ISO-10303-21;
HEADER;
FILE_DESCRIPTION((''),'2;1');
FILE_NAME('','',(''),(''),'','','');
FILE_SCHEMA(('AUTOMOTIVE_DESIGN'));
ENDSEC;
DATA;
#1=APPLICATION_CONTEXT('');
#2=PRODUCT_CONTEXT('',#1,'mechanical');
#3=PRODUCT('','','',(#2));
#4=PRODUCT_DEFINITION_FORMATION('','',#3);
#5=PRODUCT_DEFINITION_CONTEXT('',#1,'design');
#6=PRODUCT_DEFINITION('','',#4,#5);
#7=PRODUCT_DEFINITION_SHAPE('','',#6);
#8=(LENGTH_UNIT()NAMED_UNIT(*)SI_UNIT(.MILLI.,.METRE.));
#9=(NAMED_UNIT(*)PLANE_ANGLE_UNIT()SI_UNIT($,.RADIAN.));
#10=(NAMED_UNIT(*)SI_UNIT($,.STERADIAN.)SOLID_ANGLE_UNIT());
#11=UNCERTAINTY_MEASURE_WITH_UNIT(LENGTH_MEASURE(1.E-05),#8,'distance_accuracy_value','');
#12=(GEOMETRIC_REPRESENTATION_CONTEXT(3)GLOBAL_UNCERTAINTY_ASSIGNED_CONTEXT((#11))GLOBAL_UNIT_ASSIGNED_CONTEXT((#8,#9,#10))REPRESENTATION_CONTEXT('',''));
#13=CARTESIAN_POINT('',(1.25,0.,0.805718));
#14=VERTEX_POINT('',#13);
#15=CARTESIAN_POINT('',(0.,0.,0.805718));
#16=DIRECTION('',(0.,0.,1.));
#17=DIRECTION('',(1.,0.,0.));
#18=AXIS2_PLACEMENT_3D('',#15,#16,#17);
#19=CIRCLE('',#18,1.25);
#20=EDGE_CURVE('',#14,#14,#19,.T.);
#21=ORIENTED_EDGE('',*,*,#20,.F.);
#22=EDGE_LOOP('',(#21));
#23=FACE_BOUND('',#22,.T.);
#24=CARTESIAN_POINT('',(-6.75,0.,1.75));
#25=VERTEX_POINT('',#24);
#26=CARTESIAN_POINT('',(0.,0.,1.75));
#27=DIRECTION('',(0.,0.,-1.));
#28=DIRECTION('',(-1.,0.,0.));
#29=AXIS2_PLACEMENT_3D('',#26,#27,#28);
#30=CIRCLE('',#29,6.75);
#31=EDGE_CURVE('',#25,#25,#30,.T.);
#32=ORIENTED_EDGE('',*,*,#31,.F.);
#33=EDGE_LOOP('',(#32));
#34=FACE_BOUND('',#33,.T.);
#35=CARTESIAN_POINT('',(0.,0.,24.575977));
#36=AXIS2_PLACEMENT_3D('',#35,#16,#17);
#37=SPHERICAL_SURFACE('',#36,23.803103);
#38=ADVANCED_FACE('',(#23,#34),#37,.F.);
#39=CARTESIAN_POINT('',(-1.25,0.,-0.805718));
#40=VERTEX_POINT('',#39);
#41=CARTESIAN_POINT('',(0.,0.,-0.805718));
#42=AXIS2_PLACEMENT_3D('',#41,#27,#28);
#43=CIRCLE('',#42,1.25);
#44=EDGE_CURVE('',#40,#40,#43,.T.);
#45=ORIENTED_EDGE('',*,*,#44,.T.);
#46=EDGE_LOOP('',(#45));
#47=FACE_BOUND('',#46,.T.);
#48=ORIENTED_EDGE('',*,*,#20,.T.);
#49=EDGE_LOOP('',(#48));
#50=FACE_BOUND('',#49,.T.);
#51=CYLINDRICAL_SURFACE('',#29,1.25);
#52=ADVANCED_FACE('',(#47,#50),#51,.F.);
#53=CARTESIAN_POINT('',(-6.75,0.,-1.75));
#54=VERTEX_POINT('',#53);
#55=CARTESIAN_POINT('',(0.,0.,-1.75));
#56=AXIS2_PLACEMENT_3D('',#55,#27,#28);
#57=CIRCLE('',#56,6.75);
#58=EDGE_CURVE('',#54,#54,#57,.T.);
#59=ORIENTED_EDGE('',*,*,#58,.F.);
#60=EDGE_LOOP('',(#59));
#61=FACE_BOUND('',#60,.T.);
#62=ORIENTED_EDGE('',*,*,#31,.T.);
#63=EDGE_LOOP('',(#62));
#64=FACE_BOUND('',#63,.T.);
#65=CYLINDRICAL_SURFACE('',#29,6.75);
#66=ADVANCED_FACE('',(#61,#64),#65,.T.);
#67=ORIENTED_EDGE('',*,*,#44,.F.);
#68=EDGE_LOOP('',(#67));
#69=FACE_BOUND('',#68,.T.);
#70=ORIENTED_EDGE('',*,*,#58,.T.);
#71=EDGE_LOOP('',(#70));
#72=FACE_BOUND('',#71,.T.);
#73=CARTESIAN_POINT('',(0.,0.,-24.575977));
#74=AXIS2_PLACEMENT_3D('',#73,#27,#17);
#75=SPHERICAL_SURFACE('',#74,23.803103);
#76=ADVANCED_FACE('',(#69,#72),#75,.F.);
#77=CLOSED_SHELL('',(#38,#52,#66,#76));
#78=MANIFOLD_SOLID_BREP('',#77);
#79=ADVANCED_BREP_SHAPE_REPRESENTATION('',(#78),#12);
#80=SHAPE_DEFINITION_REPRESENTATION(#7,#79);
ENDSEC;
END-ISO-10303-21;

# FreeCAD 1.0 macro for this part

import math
import FreeCAD as App
import Part
import Sketcher
from FreeCAD import Vector
Q = App.Units.Quantity

doc = App.newDocument("Part")
body = doc.addObject("PartDesign::Body", "Body")

sketch1 = body.newObject("Sketcher::SketchObject", "Sketch")
sketch1.AttachmentSupport = (doc.getObject("XY_Plane"), [""])
sketch1.MapMode = "FlatFace"
sketch1.addGeometry(Part.Circle(Vector(0, 0, 0), Vector(0, 0, 1), 6.75), False)
sketch1.addGeometry(Part.Circle(Vector(0, 0, 0), Vector(0, 0, 1), 1.25), False)
sketch1.addConstraint(Sketcher.Constraint("Coincident", 0, 3, -1, 1))
sketch1.addConstraint(Sketcher.Constraint("Coincident", 1, 3, -1, 1))
sketch1.addConstraint(Sketcher.Constraint("Diameter", 0, Q("13.5 mm")))
sketch1.addConstraint(Sketcher.Constraint("Diameter", 1, Q("2.5 mm")))
pad1 = body.newObject("PartDesign::Pad", "Pad")
pad1.Profile = sketch1
pad1.Length = 3.5
pad1.Midplane = True

sketch2 = body.newObject("Sketcher::SketchObject", "Sketch001")
sketch2.AttachmentSupport = (doc.getObject("XZ_Plane"), [""])
sketch2.MapMode = "FlatFace"
sketch2.addGeometry(Part.LineSegment(Vector(6.75, -1.75, 0), Vector(0, -1.75, 0)), False)
sketch2.addGeometry(Part.LineSegment(Vector(0, -1.75, 0), Vector(0, -0.772874, 0)), False)
sketch2.addGeometry(Part.ArcOfCircle(Part.Circle(Vector(0, -24.575977, 0), Vector(0, 0, 1), 23.803103), math.radians(73.526224), math.radians(90)), False)
sketch2.addConstraint(Sketcher.Constraint("Coincident", 0, 2, 1, 1))
sketch2.addConstraint(Sketcher.Constraint("Coincident", 1, 2, 2, 2))
sketch2.addConstraint(Sketcher.Constraint("Coincident", 2, 1, 0, 1))
sketch2.addConstraint(Sketcher.Constraint("Horizontal", 0))
sketch2.addConstraint(Sketcher.Constraint("Vertical", 1))
sketch2.addConstraint(Sketcher.Constraint("PointOnObject", 2, 3, -2))
sketch2.addConstraint(Sketcher.Constraint("PointOnObject", 0, 2, -2))
sketch2.addConstraint(Sketcher.Constraint("DistanceX", 0, 2, 0, 1, Q("6.75 mm")))
sketch2.addConstraint(Sketcher.Constraint("DistanceY", 0, 2, -1, 1, Q("1.75 mm")))
sketch2.addConstraint(Sketcher.Constraint("Radius", 2, Q("23.803103 mm")))
groove = body.newObject("PartDesign::Groove", "Groove")
groove.Profile = sketch2
groove.ReferenceAxis = (sketch2, ["V_Axis"])
groove.Angle = 360
doc.recompute()

mirrored = body.newObject("PartDesign::Mirrored", "Mirrored")
mirrored.Originals = [groove]
mirrored.MirrorPlane = (doc.getObject("XY_Plane"), [""])
body.Tip = mirrored

doc.recompute()
